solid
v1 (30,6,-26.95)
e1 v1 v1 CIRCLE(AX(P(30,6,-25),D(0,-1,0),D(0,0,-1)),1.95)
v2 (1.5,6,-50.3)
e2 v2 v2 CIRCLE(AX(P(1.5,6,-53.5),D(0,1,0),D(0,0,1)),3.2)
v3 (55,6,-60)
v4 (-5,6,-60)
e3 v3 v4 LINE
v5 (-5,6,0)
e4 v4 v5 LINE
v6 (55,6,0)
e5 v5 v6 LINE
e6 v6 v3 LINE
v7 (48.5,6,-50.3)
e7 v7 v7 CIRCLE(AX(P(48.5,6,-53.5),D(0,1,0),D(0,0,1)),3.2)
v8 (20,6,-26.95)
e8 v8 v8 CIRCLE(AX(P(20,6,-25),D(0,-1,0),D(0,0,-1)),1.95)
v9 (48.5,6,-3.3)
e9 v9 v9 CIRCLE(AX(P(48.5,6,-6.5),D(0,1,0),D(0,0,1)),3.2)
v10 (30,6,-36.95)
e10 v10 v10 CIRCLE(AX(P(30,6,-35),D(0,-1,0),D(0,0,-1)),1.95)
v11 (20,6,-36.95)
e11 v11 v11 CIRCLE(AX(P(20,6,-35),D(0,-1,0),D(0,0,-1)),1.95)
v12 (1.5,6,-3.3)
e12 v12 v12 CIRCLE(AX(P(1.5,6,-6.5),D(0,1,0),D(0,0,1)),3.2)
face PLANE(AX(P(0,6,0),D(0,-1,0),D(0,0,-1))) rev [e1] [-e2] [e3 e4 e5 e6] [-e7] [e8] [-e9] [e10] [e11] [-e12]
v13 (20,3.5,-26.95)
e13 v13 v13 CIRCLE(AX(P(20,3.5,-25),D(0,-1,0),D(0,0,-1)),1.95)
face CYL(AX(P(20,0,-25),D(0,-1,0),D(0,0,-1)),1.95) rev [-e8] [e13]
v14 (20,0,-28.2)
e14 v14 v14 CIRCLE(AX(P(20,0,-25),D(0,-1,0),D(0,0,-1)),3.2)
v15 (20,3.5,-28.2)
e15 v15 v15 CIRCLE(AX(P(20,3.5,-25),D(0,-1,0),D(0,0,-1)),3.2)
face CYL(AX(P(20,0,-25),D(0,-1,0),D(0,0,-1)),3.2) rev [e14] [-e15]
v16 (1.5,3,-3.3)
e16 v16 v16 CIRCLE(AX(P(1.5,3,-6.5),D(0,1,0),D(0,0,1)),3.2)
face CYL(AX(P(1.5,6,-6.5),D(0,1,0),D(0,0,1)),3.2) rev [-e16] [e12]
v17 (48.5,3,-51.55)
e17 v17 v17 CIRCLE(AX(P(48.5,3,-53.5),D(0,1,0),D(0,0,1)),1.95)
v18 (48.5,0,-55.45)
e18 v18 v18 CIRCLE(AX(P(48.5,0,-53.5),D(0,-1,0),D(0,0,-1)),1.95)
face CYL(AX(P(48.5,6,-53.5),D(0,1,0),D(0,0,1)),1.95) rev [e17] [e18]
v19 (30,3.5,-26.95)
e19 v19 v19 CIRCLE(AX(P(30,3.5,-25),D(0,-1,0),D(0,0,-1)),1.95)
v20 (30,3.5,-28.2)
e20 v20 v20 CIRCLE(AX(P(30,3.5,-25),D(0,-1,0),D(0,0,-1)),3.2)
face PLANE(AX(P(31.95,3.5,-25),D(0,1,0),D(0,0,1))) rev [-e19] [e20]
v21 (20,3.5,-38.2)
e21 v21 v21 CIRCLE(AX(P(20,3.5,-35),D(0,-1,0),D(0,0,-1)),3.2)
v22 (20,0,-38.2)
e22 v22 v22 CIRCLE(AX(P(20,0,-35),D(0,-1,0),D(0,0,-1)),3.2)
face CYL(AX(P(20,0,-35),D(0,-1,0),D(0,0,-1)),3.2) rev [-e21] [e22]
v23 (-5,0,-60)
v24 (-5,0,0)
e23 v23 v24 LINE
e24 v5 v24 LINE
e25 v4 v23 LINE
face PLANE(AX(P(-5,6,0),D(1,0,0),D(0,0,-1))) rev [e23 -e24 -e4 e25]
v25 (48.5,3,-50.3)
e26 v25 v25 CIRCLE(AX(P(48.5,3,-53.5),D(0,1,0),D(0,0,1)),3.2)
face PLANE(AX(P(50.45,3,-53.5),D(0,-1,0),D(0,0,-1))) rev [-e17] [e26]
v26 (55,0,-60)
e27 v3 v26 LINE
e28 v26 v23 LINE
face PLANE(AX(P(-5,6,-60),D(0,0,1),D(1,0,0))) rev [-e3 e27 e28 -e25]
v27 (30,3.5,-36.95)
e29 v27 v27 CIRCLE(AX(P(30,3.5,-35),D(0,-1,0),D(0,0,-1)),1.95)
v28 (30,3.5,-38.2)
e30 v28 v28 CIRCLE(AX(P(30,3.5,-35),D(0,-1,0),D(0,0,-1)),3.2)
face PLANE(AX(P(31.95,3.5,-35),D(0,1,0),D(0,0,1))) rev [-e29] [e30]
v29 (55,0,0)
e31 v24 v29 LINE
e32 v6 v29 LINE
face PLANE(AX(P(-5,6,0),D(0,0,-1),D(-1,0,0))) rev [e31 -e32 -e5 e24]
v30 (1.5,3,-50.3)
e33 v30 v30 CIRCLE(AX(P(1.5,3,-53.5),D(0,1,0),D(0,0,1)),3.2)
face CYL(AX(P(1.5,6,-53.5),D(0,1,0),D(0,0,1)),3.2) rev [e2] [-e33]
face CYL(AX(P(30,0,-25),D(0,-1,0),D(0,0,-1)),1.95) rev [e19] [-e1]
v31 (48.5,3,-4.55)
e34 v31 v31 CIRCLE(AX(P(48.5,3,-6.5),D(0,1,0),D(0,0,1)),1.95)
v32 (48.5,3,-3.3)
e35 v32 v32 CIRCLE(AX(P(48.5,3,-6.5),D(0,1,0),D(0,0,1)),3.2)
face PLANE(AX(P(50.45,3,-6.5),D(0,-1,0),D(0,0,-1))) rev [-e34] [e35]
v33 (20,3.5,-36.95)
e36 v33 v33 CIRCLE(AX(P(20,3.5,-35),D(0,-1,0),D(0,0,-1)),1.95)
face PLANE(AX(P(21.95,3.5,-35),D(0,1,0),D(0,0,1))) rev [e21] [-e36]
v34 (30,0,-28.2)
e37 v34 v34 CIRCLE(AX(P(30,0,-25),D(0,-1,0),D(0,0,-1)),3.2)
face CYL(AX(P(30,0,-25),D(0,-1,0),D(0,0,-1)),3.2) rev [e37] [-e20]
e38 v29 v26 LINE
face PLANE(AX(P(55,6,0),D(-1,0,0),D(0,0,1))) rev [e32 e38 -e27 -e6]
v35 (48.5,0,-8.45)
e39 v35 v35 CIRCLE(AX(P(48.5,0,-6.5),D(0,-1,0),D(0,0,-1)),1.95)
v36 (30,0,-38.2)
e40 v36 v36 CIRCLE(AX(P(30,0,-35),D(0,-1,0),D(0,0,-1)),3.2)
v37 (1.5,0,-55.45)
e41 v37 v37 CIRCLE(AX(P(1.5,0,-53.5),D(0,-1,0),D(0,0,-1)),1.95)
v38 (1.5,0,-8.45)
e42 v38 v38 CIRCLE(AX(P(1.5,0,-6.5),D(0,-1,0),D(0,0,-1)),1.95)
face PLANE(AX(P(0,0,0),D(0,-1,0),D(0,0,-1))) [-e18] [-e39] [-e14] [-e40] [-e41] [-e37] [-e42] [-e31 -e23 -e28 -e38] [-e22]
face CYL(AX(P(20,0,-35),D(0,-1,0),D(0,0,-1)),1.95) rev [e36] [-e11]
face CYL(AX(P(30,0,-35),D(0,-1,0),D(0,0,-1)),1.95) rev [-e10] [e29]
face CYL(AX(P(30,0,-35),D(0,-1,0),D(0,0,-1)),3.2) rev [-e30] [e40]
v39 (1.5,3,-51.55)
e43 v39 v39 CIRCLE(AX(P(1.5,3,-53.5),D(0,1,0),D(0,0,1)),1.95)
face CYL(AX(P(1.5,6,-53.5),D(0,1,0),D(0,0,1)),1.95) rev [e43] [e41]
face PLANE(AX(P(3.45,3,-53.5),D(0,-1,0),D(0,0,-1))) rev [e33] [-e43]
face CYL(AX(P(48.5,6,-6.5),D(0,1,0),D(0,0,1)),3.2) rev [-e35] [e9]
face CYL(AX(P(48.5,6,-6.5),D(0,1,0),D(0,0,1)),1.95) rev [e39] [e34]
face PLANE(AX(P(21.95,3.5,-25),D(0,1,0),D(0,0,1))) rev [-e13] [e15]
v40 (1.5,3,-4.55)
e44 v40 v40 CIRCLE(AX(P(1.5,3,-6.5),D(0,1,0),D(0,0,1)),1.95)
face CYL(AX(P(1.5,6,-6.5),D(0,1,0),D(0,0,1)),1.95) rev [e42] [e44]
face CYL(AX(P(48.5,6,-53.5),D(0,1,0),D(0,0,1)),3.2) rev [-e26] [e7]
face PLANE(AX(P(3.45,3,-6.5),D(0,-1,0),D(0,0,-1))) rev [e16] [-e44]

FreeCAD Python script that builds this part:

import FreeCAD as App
import Part
import Sketcher
from FreeCAD import Vector
Q = App.Units.Quantity


def add_polygon(sketch, points):
    """Adds a closed chain of lines whose ends are joined by coincident constraints."""
    first, n = sketch.GeometryCount, len(points)
    for a, b in zip(points, points[1:] + points[:1]):
        sketch.addGeometry(Part.LineSegment(App.Vector(*a, 0), App.Vector(*b, 0)), False)
    for i in range(n):
        sketch.addConstraint(Sketcher.Constraint("Coincident", first + i, 2, first + (i + 1) % n, 1))

doc = App.newDocument("Part")
body = doc.addObject("PartDesign::Body", "Body")

# Sketch on XZ plane
sketch1 = doc.addObject("Sketcher::SketchObject", "Sketch")
body.addObject(sketch1)
sketch1.AttachmentSupport = (doc.XZ_Plane, [""])
sketch1.MapMode = "FlatFace"
add_polygon(sketch1, [(-5, -60), (-5, 0), (55, 0), (55, -60)])  # lines 0-3
sketch1.addConstraint([
    Sketcher.Constraint("Vertical", 0),
    Sketcher.Constraint("Horizontal", 1),
    Sketcher.Constraint("Vertical", 2),
    Sketcher.Constraint("Horizontal", 3),
    Sketcher.Constraint("PointOnObject", 0, 2, -1),
    Sketcher.Constraint("Equal", 3, 0),
    Sketcher.Constraint("DistanceX", 1, 1, 1, 2, Q("60 mm")),
    Sketcher.Constraint("DistanceX", 0, 2, -1, 1, Q("5 mm")),
])
pad1 = doc.addObject("PartDesign::Pad", "Pad")
body.addObject(pad1)
pad1.Profile = sketch1
pad1.Length = 6
pad1.Reversed = True

# Sketch on XZ plane
sketch2 = doc.addObject("Sketcher::SketchObject", "Sketch001")
body.addObject(sketch2)
sketch2.AttachmentSupport = (doc.XZ_Plane, [""])
sketch2.MapMode = "FlatFace"
sketch2.addGeometry([
    Part.Circle(Vector(20, -25, 0), Vector(0, 0, 1), 1.9),
    Part.Circle(Vector(30, -25, 0), Vector(0, 0, 1), 1.9),
    Part.Circle(Vector(30, -35, 0), Vector(0, 0, 1), 1.9),
    Part.Circle(Vector(20, -35, 0), Vector(0, 0, 1), 1.9),
], False)
sketch2.addConstraint([
    Sketcher.Constraint("Equal", 0, 1),
    Sketcher.Constraint("Equal", 1, 2),
    Sketcher.Constraint("Equal", 2, 3),
    Sketcher.Constraint("Horizontal", 0, 3, 1, 3),
    Sketcher.Constraint("Horizontal", 2, 3, 3, 3),
    Sketcher.Constraint("Vertical", 1, 3, 2, 3),
    Sketcher.Constraint("Vertical", 0, 3, 3, 3),
    Sketcher.Constraint("Diameter", 0, Q("3.9 mm")),
    Sketcher.Constraint("DistanceX", -1, 1, 0, 3, Q("20 mm")),
    Sketcher.Constraint("DistanceY", 0, 3, -1, 1, Q("25 mm")),
    Sketcher.Constraint("DistanceX", -1, 1, 1, 3, Q("30 mm")),
    Sketcher.Constraint("DistanceY", 2, 3, -1, 1, Q("35 mm")),
])
doc.recompute()
hole = doc.addObject("PartDesign::Hole", "Hole")
body.addObject(hole)
hole.Profile = sketch2
hole.ThreadType = "None"
hole.Diameter = 3.9
hole.DepthType = "ThroughAll"
hole.HoleCutType = "Counterbore"
hole.HoleCutDiameter = 6.4
hole.HoleCutDepth = 3.5

# Sketch on XZ plane
sketch3 = doc.addObject("Sketcher::SketchObject", "Sketch002")
body.addObject(sketch3)
sketch3.AttachmentSupport = (doc.XZ_Plane, [""])
sketch3.MapMode = "FlatFace"
sketch3.AttachmentOffset = App.Placement(Vector(0, 0, -6), App.Rotation())
sketch3.addGeometry([
    Part.Circle(Vector(1.5, -53.5, 0), Vector(0, 0, 1), 1.9),
    Part.Circle(Vector(48.5, -53.5, 0), Vector(0, 0, 1), 1.9),
    Part.Circle(Vector(48.5, -6.5, 0), Vector(0, 0, 1), 1.9),
    Part.Circle(Vector(1.5, -6.5, 0), Vector(0, 0, 1), 1.9),
], False)
sketch3.addConstraint([
    Sketcher.Constraint("Equal", 0, 1),
    Sketcher.Constraint("Equal", 1, 2),
    Sketcher.Constraint("Equal", 2, 3),
    Sketcher.Constraint("Horizontal", 0, 3, 1, 3),
    Sketcher.Constraint("Horizontal", 2, 3, 3, 3),
    Sketcher.Constraint("Vertical", 1, 3, 2, 3),
    Sketcher.Constraint("Vertical", 0, 3, 3, 3),
    Sketcher.Constraint("Diameter", 0, Q("3.9 mm")),
    Sketcher.Constraint("DistanceX", 0, 3, 1, 3, Q("47 mm")),
    Sketcher.Constraint("DistanceY", 1, 3, 2, 3, Q("47 mm")),
    Sketcher.Constraint("DistanceX", -1, 1, 0, 3, Q("1.5 mm")),
    Sketcher.Constraint("DistanceY", 0, 3, -1, 1, Q("53.5 mm")),
])
doc.recompute()
hole2 = doc.addObject("PartDesign::Hole", "Hole001")
body.addObject(hole2)
hole2.Profile = sketch3
hole2.ThreadType = "None"
hole2.Diameter = 3.9
hole2.DepthType = "Dimension"
hole2.Depth = 100
hole2.DrillPoint = "Flat"
hole2.HoleCutType = "Counterbore"
hole2.HoleCutDiameter = 6.4
hole2.HoleCutDepth = 3
hole2.Reversed = True

doc.recompute()
